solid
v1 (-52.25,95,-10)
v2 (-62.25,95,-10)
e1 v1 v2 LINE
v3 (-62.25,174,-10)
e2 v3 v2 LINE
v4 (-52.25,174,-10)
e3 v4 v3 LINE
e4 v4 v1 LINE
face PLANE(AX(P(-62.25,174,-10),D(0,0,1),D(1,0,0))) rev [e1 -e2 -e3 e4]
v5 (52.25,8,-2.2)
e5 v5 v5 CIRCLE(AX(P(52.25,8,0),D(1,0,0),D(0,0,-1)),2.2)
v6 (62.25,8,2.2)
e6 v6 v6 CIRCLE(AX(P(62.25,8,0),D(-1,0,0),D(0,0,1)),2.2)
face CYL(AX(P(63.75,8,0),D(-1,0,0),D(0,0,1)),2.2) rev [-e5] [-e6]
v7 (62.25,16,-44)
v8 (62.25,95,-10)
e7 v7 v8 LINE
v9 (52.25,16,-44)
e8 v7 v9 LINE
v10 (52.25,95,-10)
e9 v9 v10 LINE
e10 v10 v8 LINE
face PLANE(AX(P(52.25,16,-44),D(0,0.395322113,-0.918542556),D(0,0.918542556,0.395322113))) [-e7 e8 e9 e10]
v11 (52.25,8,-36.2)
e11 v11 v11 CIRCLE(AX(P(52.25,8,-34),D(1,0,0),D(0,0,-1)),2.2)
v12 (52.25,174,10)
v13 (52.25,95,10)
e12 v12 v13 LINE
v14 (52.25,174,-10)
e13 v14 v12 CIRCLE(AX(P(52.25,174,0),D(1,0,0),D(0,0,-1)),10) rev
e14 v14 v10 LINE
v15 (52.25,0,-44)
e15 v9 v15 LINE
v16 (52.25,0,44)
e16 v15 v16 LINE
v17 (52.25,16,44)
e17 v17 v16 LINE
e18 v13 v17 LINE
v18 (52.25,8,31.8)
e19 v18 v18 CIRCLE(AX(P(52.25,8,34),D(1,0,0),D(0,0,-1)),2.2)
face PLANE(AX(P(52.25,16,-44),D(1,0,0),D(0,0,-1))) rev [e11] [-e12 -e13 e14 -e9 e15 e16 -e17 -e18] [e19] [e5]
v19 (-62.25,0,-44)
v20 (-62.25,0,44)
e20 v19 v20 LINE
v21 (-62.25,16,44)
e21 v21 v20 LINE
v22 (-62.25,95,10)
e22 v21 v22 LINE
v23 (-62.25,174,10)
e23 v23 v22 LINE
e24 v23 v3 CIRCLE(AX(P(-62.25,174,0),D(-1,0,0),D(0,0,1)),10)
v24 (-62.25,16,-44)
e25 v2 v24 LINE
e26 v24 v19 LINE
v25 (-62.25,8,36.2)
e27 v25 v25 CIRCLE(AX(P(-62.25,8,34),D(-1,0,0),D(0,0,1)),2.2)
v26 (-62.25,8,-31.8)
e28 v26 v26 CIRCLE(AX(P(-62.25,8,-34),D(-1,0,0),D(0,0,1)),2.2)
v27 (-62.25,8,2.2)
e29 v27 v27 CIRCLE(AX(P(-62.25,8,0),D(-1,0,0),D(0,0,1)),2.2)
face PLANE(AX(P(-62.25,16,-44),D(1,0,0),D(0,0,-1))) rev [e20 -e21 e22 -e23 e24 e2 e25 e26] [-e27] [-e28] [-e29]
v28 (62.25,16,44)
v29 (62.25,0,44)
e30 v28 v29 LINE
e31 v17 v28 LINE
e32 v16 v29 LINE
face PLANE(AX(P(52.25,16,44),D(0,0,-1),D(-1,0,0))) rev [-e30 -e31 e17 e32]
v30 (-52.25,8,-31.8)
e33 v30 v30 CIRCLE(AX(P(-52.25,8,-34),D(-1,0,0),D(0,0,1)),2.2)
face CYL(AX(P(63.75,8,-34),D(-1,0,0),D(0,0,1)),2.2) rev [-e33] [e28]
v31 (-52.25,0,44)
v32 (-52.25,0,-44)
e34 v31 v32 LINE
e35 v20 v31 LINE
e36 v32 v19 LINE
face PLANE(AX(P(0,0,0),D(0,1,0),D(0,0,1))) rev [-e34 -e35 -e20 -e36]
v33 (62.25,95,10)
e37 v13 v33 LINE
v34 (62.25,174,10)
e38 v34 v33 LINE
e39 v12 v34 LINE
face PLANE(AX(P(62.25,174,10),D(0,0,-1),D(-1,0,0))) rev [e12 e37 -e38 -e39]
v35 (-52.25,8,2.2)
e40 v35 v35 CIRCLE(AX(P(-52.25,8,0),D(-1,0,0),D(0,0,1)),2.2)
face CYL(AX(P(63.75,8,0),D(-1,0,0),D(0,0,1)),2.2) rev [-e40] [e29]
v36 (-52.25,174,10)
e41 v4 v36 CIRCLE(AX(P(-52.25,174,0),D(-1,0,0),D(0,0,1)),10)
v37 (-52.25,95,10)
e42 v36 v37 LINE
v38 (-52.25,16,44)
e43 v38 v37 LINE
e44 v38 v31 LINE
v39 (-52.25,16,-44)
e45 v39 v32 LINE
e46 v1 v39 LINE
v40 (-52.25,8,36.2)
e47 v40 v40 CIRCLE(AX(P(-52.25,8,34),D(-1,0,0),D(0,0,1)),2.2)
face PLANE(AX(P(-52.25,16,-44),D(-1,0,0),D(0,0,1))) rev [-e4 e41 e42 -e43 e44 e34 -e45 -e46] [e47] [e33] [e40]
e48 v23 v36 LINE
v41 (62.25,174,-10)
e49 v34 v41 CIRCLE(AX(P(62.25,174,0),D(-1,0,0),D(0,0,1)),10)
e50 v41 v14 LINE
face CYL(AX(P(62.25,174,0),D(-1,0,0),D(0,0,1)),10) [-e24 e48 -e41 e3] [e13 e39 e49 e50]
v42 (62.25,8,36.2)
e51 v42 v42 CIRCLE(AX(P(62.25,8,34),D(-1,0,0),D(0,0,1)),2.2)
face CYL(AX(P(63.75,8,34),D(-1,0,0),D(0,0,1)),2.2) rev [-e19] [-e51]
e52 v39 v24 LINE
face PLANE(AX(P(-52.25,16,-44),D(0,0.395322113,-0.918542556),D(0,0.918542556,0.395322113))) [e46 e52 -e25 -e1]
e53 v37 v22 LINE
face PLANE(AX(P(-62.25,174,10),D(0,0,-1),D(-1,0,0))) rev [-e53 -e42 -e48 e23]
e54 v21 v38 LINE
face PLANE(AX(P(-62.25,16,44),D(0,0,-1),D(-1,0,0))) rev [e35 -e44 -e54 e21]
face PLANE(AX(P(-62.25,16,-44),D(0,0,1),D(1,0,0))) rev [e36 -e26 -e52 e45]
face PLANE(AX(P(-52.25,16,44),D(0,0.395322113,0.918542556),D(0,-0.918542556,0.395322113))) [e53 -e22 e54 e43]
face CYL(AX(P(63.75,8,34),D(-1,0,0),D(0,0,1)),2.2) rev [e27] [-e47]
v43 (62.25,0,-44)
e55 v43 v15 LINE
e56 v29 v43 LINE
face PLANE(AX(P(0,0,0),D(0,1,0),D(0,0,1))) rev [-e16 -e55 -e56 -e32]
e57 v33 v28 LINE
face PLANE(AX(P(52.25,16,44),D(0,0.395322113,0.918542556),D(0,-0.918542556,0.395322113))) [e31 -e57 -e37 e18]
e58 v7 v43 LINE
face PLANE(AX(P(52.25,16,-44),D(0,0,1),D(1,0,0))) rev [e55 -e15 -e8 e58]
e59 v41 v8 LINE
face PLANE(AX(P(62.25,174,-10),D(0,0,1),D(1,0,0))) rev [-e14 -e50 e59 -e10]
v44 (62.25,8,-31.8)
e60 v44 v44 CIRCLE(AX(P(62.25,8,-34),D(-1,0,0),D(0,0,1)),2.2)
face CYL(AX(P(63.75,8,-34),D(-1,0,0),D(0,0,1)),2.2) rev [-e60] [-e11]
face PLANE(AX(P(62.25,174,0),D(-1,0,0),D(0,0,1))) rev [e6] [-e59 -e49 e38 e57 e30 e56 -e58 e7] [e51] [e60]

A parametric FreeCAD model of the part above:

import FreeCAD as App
import Part
import Sketcher
from FreeCAD import Vector
Q = App.Units.Quantity


def add_polygon(sketch, points):
    """Adds a closed chain of lines whose ends are joined by coincident constraints."""
    first, n = sketch.GeometryCount, len(points)
    for a, b in zip(points, points[1:] + points[:1]):
        sketch.addGeometry(Part.LineSegment(App.Vector(*a, 0), App.Vector(*b, 0)), False)
    for i in range(n):
        sketch.addConstraint(Sketcher.Constraint("Coincident", first + i, 2, first + (i + 1) % n, 1))

doc = App.newDocument("Part")
params = doc.addObject("Spreadsheet::Sheet", "Params")
for row, (alias, value) in enumerate([
    ("sketch1_width", "10 mm"),
    ("sketch1_height", "88 mm"),
    ("pad1_length", "16 mm"),
    ("sketch2_width", "10 mm"),
    ("sketch2_height", "88 mm"),
    ("pad2_length", "16 mm"),
    ("sketch3_width", "10 mm"),
    ("sketch3_height", "20 mm"),
    ("pad3_length", "158 mm"),
    ("sketch4_diameter", "20 mm"),
    ("pad4_length", "124.5 mm"),
    ("sketch5_diameter", "4.4 mm"),
    ("pocket1_length", "126 mm"),
    ("sketch6_width", "79 mm"),
    ("sketch6_height", "34 mm"),
    ("pad5_length", "10 mm"),
    ("sketch7_width", "79 mm"),
    ("sketch7_height", "34 mm"),
    ("pad6_length", "10 mm"),
], start=1):
    params.set(f"A{row}", alias)
    params.set(f"B{row}", "=" + value)
    params.setAlias(f"B{row}", alias)

body = doc.addObject("PartDesign::Body", "Body")

# Sketch on XZ plane
sketch1 = body.newObject("Sketcher::SketchObject", "Sketch")
sketch1.AttachmentSupport = (doc.getObject("XZ_Plane"), [""])
sketch1.MapMode = "FlatFace"
add_polygon(sketch1, [(-62.25, -44), (-62.25, 44), (-52.25, 44), (-52.25, -44)])  # lines 0-3
sketch1.addConstraint(Sketcher.Constraint("Vertical", 0))
sketch1.addConstraint(Sketcher.Constraint("Horizontal", 1))
sketch1.addConstraint(Sketcher.Constraint("Vertical", 2))
sketch1.addConstraint(Sketcher.Constraint("Horizontal", 3))
sketch1.addConstraint(Sketcher.Constraint("DistanceX", 1, 1, 1, 2, Q("10 mm")))
sketch1.addConstraint(Sketcher.Constraint("DistanceY", 0, 1, 0, 2, Q("88 mm")))
sketch1.addConstraint(Sketcher.Constraint("DistanceY", -1, 1, 0, 2, Q("44 mm")))
sketch1.addConstraint(Sketcher.Constraint("DistanceX", 0, 2, -1, 1, Q("62.25 mm")))
sketch1.setExpression("Constraints[8]", "Params.sketch1_width")
sketch1.setExpression("Constraints[9]", "Params.sketch1_height")
pad1 = body.newObject("PartDesign::Pad", "Pad")
pad1.Profile = sketch1
pad1.setExpression("Length", "Params.pad1_length")
pad1.Reversed = True
body2 = doc.addObject("PartDesign::Body", "Body001")

# Sketch on XZ plane
sketch2 = body2.newObject("Sketcher::SketchObject", "Sketch001")
sketch2.AttachmentSupport = (doc.getObject("XZ_Plane001"), [""])
sketch2.MapMode = "FlatFace"
add_polygon(sketch2, [(52.25, -44), (52.25, 44), (62.25, 44), (62.25, -44)])  # lines 0-3
sketch2.addConstraint(Sketcher.Constraint("Vertical", 0))
sketch2.addConstraint(Sketcher.Constraint("Horizontal", 1))
sketch2.addConstraint(Sketcher.Constraint("Vertical", 2))
sketch2.addConstraint(Sketcher.Constraint("Horizontal", 3))
sketch2.addConstraint(Sketcher.Constraint("DistanceX", 1, 1, 1, 2, Q("10 mm")))
sketch2.addConstraint(Sketcher.Constraint("DistanceY", 0, 1, 0, 2, Q("88 mm")))
sketch2.addConstraint(Sketcher.Constraint("DistanceY", -1, 1, 0, 2, Q("44 mm")))
sketch2.addConstraint(Sketcher.Constraint("DistanceX", -1, 1, 0, 2, Q("52.25 mm")))
sketch2.setExpression("Constraints[8]", "Params.sketch2_width")
sketch2.setExpression("Constraints[9]", "Params.sketch2_height")
pad2 = body2.newObject("PartDesign::Pad", "Pad001")
pad2.Profile = sketch2
pad2.setExpression("Length", "Params.pad2_length")
pad2.Reversed = True
body.AllowCompound = True
doc.recompute()

boolean = body.newObject("PartDesign::Boolean", "Boolean")
boolean.Type = "Fuse"
boolean.addObjects([body2])

# Sketch on XZ plane
sketch3 = body.newObject("Sketcher::SketchObject", "Sketch002")
sketch3.AttachmentSupport = (doc.getObject("XZ_Plane"), [""])
sketch3.MapMode = "FlatFace"
sketch3.AttachmentOffset = App.Placement(Vector(0, 0, -16), App.Rotation())
add_polygon(sketch3, [(-62.25, -10), (-62.25, 10), (-52.25, 10), (-52.25, -10)])  # lines 0-3
add_polygon(sketch3, [(52.25, -10), (52.25, 10), (62.25, 10), (62.25, -10)])  # lines 4-7
sketch3.addConstraint(Sketcher.Constraint("Vertical", 0))
sketch3.addConstraint(Sketcher.Constraint("Horizontal", 1))
sketch3.addConstraint(Sketcher.Constraint("Vertical", 2))
sketch3.addConstraint(Sketcher.Constraint("Horizontal", 3))
sketch3.addConstraint(Sketcher.Constraint("Vertical", 4))
sketch3.addConstraint(Sketcher.Constraint("Horizontal", 5))
sketch3.addConstraint(Sketcher.Constraint("Vertical", 6))
sketch3.addConstraint(Sketcher.Constraint("Horizontal", 7))
sketch3.addConstraint(Sketcher.Constraint("Symmetric", 2, 2, 4, 2, -1, 1))
sketch3.addConstraint(Sketcher.Constraint("Symmetric", 0, 2, 6, 2, -1, 1))
sketch3.addConstraint(Sketcher.Constraint("Horizontal", 1, 2, 4, 2))
sketch3.addConstraint(Sketcher.Constraint("DistanceX", 1, 1, 1, 2, Q("10 mm")))
sketch3.addConstraint(Sketcher.Constraint("DistanceY", 0, 1, 0, 2, Q("20 mm")))
sketch3.addConstraint(Sketcher.Constraint("DistanceX", 1, 2, 4, 2, Q("104.5 mm")))
sketch3.setExpression("Constraints[19]", "Params.sketch3_width")
sketch3.setExpression("Constraints[20]", "Params.sketch3_height")
pad3 = body.newObject("PartDesign::Pad", "Pad002")
pad3.Profile = sketch3
pad3.setExpression("Length", "Params.pad3_length")
pad3.Reversed = True

# Sketch on YZ plane
sketch4 = body.newObject("Sketcher::SketchObject", "Sketch003")
sketch4.AttachmentSupport = (doc.getObject("YZ_Plane"), [""])
sketch4.MapMode = "FlatFace"
sketch4.AttachmentOffset = App.Placement(Vector(0, 0, -62.25), App.Rotation())
sketch4.addGeometry(Part.Circle(Vector(174, 0, 0), Vector(0, 0, 1), 10), False)
sketch4.addConstraint(Sketcher.Constraint("PointOnObject", 0, 3, -1))
sketch4.addConstraint(Sketcher.Constraint("Diameter", 0, Q("20 mm")))
sketch4.addConstraint(Sketcher.Constraint("DistanceX", -1, 1, 0, 3, Q("174 mm")))
sketch4.setExpression("Constraints[1]", "Params.sketch4_diameter")
pad4 = body.newObject("PartDesign::Pad", "Pad003")
pad4.Profile = sketch4
pad4.setExpression("Length", "Params.pad4_length")

# Sketch on YZ plane
sketch5 = body.newObject("Sketcher::SketchObject", "Sketch004")
sketch5.AttachmentSupport = (doc.getObject("YZ_Plane"), [""])
sketch5.MapMode = "FlatFace"
sketch5.AttachmentOffset = App.Placement(Vector(0, 0, -62.25), App.Rotation())
sketch5.addGeometry(Part.Circle(Vector(8, 0, 0), Vector(0, 0, 1), 2.2), False)
sketch5.addGeometry(Part.Circle(Vector(8, -34, 0), Vector(0, 0, 1), 2.2), False)
sketch5.addGeometry(Part.Circle(Vector(8, 34, 0), Vector(0, 0, 1), 2.2), False)
sketch5.addConstraint(Sketcher.Constraint("Equal", 0, 1))
sketch5.addConstraint(Sketcher.Constraint("Equal", 1, 2))
sketch5.addConstraint(Sketcher.Constraint("Symmetric", 1, 3, 2, 3, -1))
sketch5.addConstraint(Sketcher.Constraint("PointOnObject", 0, 3, -1))
sketch5.addConstraint(Sketcher.Constraint("Vertical", 0, 3, 1, 3))
sketch5.addConstraint(Sketcher.Constraint("Diameter", 0, Q("4.4 mm")))
sketch5.addConstraint(Sketcher.Constraint("DistanceX", -1, 1, 0, 3, Q("8 mm")))
sketch5.addConstraint(Sketcher.Constraint("DistanceY", 1, 3, -1, 1, Q("34 mm")))
sketch5.setExpression("Constraints[5]", "Params.sketch5_diameter")
pocket1 = body.newObject("PartDesign::Pocket", "Pocket")
pocket1.Profile = sketch5
pocket1.setExpression("Length", "Params.pocket1_length")
pocket1.Reversed = True

# Sketch on YZ plane
sketch6 = body.newObject("Sketcher::SketchObject", "Sketch005")
sketch6.AttachmentSupport = (doc.getObject("YZ_Plane"), [""])
sketch6.MapMode = "FlatFace"
sketch6.AttachmentOffset = App.Placement(Vector(0, 0, -62.25), App.Rotation())
add_polygon(sketch6, [(95, -10), (16, -44), (16, -10)])  # lines 0-2
add_polygon(sketch6, [(16, 44), (95, 10), (16, 10)])  # lines 3-5
sketch6.addConstraint(Sketcher.Constraint("Vertical", 1))
sketch6.addConstraint(Sketcher.Constraint("Horizontal", 2))
sketch6.addConstraint(Sketcher.Constraint("Horizontal", 4))
sketch6.addConstraint(Sketcher.Constraint("Vertical", 5))
sketch6.addConstraint(Sketcher.Constraint("Symmetric", 2, 2, 3, 2, -1))
sketch6.addConstraint(Sketcher.Constraint("Symmetric", 0, 2, 5, 2, -1))
sketch6.addConstraint(Sketcher.Constraint("DistanceX", 2, 1, 2, 2, Q("79 mm")))
sketch6.addConstraint(Sketcher.Constraint("DistanceY", 1, 1, 1, 2, Q("34 mm")))
sketch6.addConstraint(Sketcher.Constraint("DistanceX", -1, 1, 0, 2, Q("16 mm")))
sketch6.addConstraint(Sketcher.Constraint("DistanceY", 0, 2, -1, 1, Q("44 mm")))
sketch6.setExpression("Constraints[12]", "Params.sketch6_width")
sketch6.setExpression("Constraints[13]", "Params.sketch6_height")
pad5 = body.newObject("PartDesign::Pad", "Pad004")
pad5.Profile = sketch6
pad5.setExpression("Length", "Params.pad5_length")

# Sketch on YZ plane
sketch7 = body.newObject("Sketcher::SketchObject", "Sketch006")
sketch7.AttachmentSupport = (doc.getObject("YZ_Plane"), [""])
sketch7.MapMode = "FlatFace"
sketch7.AttachmentOffset = App.Placement(Vector(0, 0, 62.25), App.Rotation())
add_polygon(sketch7, [(95, 10), (16, 44), (16, 10)])  # lines 0-2
add_polygon(sketch7, [(16, -44), (95, -10), (16, -10)])  # lines 3-5
sketch7.addConstraint(Sketcher.Constraint("Vertical", 1))
sketch7.addConstraint(Sketcher.Constraint("Horizontal", 2))
sketch7.addConstraint(Sketcher.Constraint("Horizontal", 4))
sketch7.addConstraint(Sketcher.Constraint("Vertical", 5))
sketch7.addConstraint(Sketcher.Constraint("Symmetric", 2, 2, 3, 2, -1))
sketch7.addConstraint(Sketcher.Constraint("Symmetric", 0, 2, 5, 2, -1))
sketch7.addConstraint(Sketcher.Constraint("DistanceX", 2, 1, 2, 2, Q("79 mm")))
sketch7.addConstraint(Sketcher.Constraint("DistanceY", 1, 2, 1, 1, Q("34 mm")))
sketch7.addConstraint(Sketcher.Constraint("DistanceX", -1, 1, 0, 2, Q("16 mm")))
sketch7.addConstraint(Sketcher.Constraint("DistanceY", -1, 1, 0, 2, Q("44 mm")))
sketch7.setExpression("Constraints[12]", "Params.sketch7_width")
sketch7.setExpression("Constraints[13]", "Params.sketch7_height")
pad6 = body.newObject("PartDesign::Pad", "Pad005")
pad6.Profile = sketch7
pad6.setExpression("Length", "Params.pad6_length")
pad6.Reversed = True

doc.recompute()
